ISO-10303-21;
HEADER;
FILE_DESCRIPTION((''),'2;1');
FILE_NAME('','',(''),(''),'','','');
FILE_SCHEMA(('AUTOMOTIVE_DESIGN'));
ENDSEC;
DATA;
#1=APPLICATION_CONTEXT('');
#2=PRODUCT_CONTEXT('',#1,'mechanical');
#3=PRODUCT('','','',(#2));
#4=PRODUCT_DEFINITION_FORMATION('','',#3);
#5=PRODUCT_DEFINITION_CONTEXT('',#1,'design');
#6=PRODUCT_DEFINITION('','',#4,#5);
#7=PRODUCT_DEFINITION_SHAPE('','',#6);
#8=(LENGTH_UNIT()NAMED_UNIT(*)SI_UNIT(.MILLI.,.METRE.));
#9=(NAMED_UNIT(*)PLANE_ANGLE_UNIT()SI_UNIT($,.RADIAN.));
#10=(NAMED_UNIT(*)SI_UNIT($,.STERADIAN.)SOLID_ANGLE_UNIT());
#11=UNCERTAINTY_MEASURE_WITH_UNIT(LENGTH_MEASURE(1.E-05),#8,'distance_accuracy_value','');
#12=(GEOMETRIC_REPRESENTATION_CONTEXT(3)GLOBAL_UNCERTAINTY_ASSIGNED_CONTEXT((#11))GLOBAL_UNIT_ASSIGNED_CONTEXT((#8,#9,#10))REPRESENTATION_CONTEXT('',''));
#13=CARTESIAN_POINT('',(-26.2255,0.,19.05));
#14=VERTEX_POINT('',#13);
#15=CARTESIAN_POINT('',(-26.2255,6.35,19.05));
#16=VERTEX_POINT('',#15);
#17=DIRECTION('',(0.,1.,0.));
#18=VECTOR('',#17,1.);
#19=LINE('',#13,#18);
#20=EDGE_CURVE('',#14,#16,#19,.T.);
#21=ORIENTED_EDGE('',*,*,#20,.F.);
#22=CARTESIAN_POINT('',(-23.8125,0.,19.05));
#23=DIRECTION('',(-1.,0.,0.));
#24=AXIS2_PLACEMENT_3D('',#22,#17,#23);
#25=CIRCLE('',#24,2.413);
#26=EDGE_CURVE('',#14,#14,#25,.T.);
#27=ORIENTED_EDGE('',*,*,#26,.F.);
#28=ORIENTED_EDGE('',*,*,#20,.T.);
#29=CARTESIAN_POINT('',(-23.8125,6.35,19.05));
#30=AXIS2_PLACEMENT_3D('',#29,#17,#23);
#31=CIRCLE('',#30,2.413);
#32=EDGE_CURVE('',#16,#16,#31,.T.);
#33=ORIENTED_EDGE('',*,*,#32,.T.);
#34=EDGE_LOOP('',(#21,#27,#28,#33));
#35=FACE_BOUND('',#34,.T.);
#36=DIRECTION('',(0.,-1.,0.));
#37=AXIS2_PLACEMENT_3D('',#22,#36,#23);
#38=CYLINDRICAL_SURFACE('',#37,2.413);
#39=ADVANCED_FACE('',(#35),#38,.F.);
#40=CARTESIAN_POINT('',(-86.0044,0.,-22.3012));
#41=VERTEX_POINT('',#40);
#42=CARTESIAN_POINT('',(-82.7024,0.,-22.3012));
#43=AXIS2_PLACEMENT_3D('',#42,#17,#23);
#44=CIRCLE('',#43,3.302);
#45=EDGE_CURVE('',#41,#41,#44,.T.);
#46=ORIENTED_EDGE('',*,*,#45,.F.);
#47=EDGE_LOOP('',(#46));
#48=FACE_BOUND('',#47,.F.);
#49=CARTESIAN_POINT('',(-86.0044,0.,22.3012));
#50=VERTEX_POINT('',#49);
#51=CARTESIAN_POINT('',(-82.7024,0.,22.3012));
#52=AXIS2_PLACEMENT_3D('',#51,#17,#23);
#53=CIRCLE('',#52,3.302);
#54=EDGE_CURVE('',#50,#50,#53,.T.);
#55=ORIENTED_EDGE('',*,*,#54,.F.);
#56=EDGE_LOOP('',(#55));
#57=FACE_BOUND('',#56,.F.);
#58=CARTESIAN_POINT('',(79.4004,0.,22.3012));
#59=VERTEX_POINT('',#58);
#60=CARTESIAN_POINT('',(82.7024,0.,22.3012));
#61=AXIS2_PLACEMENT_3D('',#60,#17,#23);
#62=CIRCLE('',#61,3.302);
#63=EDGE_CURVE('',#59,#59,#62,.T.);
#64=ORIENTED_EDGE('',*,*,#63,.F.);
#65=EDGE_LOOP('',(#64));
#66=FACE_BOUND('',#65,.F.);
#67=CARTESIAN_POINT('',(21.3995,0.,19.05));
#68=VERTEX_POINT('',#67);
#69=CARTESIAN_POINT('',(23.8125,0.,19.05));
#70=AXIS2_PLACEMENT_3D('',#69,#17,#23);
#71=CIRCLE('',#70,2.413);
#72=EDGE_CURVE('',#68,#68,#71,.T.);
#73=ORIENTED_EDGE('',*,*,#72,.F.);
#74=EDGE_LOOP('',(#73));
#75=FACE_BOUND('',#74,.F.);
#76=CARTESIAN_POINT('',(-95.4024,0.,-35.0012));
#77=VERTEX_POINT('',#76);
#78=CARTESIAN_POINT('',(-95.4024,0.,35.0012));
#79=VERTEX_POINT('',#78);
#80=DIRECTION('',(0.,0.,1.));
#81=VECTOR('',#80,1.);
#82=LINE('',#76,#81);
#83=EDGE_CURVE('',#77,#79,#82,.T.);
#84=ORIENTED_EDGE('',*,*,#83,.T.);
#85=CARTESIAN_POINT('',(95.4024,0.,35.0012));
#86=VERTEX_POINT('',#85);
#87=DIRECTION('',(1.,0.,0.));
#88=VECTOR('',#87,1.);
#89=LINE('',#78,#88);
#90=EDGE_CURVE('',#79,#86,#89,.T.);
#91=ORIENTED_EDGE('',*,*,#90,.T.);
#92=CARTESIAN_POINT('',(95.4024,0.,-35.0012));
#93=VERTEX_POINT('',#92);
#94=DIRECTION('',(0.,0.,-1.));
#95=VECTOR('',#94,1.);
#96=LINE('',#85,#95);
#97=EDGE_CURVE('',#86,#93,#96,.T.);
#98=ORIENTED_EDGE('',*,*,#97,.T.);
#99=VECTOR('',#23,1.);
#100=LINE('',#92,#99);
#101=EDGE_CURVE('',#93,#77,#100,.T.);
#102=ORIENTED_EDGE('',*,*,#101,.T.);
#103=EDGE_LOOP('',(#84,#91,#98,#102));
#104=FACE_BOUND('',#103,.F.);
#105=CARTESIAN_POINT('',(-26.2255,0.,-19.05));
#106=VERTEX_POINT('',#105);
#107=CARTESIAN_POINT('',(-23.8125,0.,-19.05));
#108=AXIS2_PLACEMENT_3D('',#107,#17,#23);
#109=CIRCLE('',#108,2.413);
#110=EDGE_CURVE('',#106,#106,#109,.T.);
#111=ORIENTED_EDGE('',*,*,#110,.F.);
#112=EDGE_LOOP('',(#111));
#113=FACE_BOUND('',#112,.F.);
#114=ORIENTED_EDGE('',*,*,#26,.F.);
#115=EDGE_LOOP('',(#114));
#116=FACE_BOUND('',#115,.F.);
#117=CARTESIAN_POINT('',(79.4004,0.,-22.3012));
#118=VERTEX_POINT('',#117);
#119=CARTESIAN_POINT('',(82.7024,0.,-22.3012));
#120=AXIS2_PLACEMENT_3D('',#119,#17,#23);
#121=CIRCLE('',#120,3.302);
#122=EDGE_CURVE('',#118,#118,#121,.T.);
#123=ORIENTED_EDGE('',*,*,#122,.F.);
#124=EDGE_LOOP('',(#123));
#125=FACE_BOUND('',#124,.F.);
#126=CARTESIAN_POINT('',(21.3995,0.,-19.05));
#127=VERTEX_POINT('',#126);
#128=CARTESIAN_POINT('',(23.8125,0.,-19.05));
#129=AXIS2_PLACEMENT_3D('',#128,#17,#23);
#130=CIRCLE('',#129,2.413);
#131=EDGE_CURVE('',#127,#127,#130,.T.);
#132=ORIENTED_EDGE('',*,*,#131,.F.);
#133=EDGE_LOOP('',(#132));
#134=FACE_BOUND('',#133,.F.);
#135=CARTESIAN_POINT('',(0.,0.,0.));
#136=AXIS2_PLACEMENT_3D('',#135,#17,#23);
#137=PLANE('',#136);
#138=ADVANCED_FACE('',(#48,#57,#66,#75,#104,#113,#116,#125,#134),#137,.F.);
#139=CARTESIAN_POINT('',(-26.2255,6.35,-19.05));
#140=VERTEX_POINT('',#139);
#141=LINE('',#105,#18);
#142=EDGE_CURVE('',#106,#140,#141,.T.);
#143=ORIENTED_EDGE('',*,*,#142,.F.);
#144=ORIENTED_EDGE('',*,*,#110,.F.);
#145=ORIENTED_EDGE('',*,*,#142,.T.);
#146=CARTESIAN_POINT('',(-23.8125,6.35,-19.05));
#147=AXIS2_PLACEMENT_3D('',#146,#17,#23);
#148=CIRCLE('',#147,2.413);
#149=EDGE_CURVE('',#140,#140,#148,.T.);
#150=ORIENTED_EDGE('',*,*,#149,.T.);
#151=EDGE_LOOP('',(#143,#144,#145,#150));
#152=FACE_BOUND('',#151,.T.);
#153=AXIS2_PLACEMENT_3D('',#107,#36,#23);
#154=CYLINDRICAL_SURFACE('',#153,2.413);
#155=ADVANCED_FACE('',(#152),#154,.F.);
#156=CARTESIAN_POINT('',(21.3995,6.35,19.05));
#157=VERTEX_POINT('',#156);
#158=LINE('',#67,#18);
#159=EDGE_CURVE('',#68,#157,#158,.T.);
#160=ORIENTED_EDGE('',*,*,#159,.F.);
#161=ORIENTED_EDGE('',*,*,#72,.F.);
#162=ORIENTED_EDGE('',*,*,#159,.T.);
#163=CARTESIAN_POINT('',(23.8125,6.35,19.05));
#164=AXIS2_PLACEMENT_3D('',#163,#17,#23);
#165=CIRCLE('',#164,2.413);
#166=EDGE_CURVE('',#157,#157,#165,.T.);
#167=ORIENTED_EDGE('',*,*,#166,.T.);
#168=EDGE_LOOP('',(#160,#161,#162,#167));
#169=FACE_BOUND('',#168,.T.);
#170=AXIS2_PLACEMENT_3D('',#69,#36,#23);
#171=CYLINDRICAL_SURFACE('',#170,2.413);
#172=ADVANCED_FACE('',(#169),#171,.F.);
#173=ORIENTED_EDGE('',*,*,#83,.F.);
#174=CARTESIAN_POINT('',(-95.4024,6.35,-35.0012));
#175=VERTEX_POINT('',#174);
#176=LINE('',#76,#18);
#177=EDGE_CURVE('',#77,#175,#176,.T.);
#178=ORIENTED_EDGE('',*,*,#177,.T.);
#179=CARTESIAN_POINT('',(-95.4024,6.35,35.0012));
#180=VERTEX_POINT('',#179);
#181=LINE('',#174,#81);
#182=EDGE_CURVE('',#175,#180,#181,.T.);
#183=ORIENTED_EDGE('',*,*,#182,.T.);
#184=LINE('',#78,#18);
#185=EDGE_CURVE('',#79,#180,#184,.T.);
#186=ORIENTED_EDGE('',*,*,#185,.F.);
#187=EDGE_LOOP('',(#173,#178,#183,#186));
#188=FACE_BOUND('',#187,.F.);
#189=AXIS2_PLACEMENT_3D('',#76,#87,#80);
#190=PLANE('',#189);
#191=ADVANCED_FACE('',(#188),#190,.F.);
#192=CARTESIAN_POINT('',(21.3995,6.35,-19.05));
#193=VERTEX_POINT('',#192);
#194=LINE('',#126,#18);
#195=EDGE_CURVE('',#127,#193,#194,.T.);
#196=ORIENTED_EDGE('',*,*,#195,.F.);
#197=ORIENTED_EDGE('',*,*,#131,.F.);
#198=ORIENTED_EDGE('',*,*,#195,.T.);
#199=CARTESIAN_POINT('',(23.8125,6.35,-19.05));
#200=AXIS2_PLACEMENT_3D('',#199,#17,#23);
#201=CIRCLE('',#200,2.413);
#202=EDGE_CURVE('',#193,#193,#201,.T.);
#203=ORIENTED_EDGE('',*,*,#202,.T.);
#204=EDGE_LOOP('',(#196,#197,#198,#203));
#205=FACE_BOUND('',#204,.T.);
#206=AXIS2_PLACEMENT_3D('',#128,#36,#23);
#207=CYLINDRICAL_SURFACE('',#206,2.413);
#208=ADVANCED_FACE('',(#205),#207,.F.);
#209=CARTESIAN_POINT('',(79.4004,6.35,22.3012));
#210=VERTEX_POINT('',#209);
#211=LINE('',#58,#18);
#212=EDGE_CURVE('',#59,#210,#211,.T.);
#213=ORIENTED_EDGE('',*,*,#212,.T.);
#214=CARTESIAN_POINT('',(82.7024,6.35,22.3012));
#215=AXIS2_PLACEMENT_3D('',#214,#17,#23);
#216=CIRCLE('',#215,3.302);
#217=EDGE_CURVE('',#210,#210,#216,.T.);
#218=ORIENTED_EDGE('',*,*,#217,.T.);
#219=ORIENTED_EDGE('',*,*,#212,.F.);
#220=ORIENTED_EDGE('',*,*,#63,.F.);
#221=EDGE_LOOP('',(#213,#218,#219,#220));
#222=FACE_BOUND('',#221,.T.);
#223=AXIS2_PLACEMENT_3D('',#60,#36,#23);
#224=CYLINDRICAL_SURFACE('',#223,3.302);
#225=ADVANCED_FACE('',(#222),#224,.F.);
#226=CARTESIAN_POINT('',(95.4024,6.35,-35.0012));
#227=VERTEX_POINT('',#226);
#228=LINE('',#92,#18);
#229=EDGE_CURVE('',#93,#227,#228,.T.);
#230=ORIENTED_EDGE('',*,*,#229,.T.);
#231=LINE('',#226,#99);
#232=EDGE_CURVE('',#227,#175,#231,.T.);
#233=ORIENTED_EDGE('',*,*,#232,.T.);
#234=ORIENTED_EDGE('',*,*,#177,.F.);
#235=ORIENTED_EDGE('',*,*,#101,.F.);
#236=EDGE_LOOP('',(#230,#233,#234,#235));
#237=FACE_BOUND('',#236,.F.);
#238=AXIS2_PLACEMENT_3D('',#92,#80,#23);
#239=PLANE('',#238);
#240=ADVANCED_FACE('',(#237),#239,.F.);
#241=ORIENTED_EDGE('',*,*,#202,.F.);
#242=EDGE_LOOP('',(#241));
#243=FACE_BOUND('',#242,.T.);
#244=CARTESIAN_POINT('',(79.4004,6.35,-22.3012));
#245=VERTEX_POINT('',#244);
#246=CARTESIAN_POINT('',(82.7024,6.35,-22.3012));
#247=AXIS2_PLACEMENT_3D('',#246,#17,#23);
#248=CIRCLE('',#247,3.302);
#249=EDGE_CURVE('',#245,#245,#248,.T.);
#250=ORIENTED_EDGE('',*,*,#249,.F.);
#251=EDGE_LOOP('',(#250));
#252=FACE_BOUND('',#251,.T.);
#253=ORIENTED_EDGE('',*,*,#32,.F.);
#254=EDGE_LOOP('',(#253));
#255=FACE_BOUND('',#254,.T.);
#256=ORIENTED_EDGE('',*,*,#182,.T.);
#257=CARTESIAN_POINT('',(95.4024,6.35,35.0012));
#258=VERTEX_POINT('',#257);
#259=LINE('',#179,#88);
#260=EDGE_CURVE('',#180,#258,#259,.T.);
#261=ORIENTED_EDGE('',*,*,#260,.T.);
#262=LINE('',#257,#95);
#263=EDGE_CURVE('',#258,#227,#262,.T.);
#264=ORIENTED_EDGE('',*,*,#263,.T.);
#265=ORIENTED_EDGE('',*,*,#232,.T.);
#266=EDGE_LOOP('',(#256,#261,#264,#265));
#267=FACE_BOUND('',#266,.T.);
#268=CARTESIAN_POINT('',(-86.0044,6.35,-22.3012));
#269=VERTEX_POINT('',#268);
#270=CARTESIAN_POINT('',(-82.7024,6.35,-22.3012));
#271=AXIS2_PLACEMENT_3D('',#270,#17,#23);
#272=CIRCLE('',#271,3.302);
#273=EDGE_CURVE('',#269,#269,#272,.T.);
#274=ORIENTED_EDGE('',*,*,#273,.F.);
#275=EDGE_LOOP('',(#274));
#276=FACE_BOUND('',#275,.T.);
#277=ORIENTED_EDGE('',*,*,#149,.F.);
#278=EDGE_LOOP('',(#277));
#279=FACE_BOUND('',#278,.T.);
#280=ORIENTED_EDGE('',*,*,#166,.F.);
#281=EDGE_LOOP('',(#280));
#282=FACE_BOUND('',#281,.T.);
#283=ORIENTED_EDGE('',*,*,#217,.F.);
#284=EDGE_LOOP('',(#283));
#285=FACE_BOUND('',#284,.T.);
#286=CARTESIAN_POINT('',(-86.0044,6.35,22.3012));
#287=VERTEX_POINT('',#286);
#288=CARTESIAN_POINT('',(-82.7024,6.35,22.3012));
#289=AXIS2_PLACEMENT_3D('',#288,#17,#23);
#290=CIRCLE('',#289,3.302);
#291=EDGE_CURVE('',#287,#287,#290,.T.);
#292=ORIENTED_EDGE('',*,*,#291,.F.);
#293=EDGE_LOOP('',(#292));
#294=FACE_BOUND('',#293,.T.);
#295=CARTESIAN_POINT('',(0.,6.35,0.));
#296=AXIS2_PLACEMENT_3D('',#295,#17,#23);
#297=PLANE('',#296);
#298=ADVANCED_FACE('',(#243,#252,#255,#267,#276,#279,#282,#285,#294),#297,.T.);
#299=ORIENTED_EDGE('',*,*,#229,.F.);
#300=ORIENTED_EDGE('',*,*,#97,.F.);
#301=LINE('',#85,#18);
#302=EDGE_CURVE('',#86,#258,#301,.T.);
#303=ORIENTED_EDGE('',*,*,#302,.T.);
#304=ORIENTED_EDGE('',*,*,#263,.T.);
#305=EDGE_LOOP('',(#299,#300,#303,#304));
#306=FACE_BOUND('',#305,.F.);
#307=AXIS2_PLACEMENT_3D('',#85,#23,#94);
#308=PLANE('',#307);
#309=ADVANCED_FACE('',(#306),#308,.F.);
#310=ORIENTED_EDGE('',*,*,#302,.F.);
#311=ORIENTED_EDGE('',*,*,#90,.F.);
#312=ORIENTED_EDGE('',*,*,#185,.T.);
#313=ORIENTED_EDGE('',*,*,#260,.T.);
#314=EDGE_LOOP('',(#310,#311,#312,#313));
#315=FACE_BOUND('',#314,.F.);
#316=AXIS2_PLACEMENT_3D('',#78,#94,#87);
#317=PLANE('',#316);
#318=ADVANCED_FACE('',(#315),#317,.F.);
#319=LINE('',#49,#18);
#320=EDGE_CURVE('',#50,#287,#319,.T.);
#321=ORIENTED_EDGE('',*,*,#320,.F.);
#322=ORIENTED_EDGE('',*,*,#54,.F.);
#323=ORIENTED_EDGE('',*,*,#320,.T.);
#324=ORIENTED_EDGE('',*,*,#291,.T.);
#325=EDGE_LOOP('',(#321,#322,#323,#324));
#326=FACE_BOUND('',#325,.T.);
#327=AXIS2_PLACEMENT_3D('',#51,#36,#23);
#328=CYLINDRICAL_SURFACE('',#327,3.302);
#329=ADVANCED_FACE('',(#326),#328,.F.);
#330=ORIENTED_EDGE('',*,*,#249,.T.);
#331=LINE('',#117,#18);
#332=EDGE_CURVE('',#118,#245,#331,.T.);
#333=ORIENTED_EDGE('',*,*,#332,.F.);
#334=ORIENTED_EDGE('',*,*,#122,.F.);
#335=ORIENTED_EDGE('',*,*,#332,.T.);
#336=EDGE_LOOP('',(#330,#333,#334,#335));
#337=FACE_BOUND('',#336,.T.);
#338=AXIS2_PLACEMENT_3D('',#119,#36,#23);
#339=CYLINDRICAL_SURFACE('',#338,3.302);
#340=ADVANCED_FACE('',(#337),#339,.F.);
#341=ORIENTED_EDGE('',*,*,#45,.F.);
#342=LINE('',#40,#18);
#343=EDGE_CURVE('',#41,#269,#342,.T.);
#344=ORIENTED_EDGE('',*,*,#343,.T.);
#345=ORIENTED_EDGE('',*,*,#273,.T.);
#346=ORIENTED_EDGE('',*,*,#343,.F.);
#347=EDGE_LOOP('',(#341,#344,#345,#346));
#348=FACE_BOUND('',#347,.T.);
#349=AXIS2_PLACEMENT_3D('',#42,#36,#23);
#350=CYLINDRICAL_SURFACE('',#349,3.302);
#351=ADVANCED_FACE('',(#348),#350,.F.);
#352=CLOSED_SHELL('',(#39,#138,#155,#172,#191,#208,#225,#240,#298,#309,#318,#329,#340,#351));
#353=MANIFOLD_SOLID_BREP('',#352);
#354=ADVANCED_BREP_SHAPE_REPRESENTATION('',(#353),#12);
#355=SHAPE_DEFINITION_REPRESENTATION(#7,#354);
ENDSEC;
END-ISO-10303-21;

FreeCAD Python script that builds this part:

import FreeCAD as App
import Part
import Sketcher
Q = App.Units.Quantity

doc = App.newDocument("Part")
body = doc.addObject("PartDesign::Body", "Body")

# Sketch on XZ plane
sketch1 = doc.addObject("Sketcher::SketchObject", "Sketch")
body.addObject(sketch1)
sketch1.AttachmentSupport = (doc.XZ_Plane, [""])
sketch1.MapMode = "FlatFace"
sketch1.addGeometry(Part.LineSegment(App.Vector(-95.4, -35, 0), App.Vector(-95.4, 35, 0)), False)
sketch1.addGeometry(Part.LineSegment(App.Vector(-95.4, 35, 0), App.Vector(95.4, 35, 0)), False)
sketch1.addGeometry(Part.LineSegment(App.Vector(95.4, 35, 0), App.Vector(95.4, -35, 0)), False)
sketch1.addGeometry(Part.LineSegment(App.Vector(95.4, -35, 0), App.Vector(-95.4, -35, 0)), False)
sketch1.addGeometry(Part.Circle(App.Vector(82.7, -22.3, 0), App.Vector(0, 0, 1), 3.3), False)
sketch1.addGeometry(Part.Circle(App.Vector(23.8, -19.1, 0), App.Vector(0, 0, 1), 2.4), False)
sketch1.addGeometry(Part.Circle(App.Vector(-23.8, -19.1, 0), App.Vector(0, 0, 1), 2.4), False)
sketch1.addGeometry(Part.Circle(App.Vector(-82.7, -22.3, 0), App.Vector(0, 0, 1), 3.3), False)
sketch1.addGeometry(Part.Circle(App.Vector(82.7, 22.3, 0), App.Vector(0, 0, 1), 3.3), False)
sketch1.addGeometry(Part.Circle(App.Vector(23.8, 19.1, 0), App.Vector(0, 0, 1), 2.4), False)
sketch1.addGeometry(Part.Circle(App.Vector(-23.8, 19.1, 0), App.Vector(0, 0, 1), 2.4), False)
sketch1.addGeometry(Part.Circle(App.Vector(-82.7, 22.3, 0), App.Vector(0, 0, 1), 3.3), False)
sketch1.addConstraint(Sketcher.Constraint("Coincident", 0, 2, 1, 1))
sketch1.addConstraint(Sketcher.Constraint("Coincident", 1, 2, 2, 1))
sketch1.addConstraint(Sketcher.Constraint("Coincident", 2, 2, 3, 1))
sketch1.addConstraint(Sketcher.Constraint("Coincident", 3, 2, 0, 1))
sketch1.addConstraint(Sketcher.Constraint("Vertical", 0))
sketch1.addConstraint(Sketcher.Constraint("Horizontal", 1))
sketch1.addConstraint(Sketcher.Constraint("Vertical", 2))
sketch1.addConstraint(Sketcher.Constraint("Horizontal", 3))
sketch1.addConstraint(Sketcher.Constraint("Equal", 5, 6))
sketch1.addConstraint(Sketcher.Constraint("Equal", 4, 7))
sketch1.addConstraint(Sketcher.Constraint("Equal", 7, 8))
sketch1.addConstraint(Sketcher.Constraint("Equal", 6, 9))
sketch1.addConstraint(Sketcher.Constraint("Equal", 9, 10))
sketch1.addConstraint(Sketcher.Constraint("Equal", 8, 11))
sketch1.addConstraint(Sketcher.Constraint("Symmetric", 7, 3, 8, 3, -1, 1))
sketch1.addConstraint(Sketcher.Constraint("Symmetric", 6, 3, 9, 3, -1, 1))
sketch1.addConstraint(Sketcher.Constraint("Symmetric", 5, 3, 10, 3, -1, 1))
sketch1.addConstraint(Sketcher.Constraint("Symmetric", 4, 3, 11, 3, -1, 1))
sketch1.addConstraint(Sketcher.Constraint("Symmetric", 0, 2, 2, 2, -1, 1))
sketch1.addConstraint(Sketcher.Constraint("Symmetric", 5, 3, 6, 3, -2))
sketch1.addConstraint(Sketcher.Constraint("Symmetric", 4, 3, 7, 3, -2))
sketch1.addConstraint(Sketcher.Constraint("Diameter", 4, Q("0.26 in")))
sketch1.addConstraint(Sketcher.Constraint("Diameter", 5, Q("0.19 in")))
sketch1.addConstraint(Sketcher.Constraint("DistanceY", 5, 3, 9, 3, Q("1.5 in")))
sketch1.addConstraint(Sketcher.Constraint("DistanceX", 0, 2, 11, 3, Q("0.5 in")))
sketch1.addConstraint(Sketcher.Constraint("DistanceY", 11, 3, 0, 2, Q("0.5 in")))
sketch1.addConstraint(Sketcher.Constraint("DistanceX", 1, 1, 1, 2, Q("7.512 in")))
sketch1.addConstraint(Sketcher.Constraint("DistanceY", 0, 1, 0, 2, Q("2.756 in")))
sketch1.addConstraint(Sketcher.Constraint("DistanceX", -1, 1, 5, 3, Q("0.9375 in")))
pad1 = doc.addObject("PartDesign::Pad", "Pad")
body.addObject(pad1)
pad1.Profile = sketch1
pad1.Length = Q("0.25 in")
pad1.Reversed = True

doc.recompute()
